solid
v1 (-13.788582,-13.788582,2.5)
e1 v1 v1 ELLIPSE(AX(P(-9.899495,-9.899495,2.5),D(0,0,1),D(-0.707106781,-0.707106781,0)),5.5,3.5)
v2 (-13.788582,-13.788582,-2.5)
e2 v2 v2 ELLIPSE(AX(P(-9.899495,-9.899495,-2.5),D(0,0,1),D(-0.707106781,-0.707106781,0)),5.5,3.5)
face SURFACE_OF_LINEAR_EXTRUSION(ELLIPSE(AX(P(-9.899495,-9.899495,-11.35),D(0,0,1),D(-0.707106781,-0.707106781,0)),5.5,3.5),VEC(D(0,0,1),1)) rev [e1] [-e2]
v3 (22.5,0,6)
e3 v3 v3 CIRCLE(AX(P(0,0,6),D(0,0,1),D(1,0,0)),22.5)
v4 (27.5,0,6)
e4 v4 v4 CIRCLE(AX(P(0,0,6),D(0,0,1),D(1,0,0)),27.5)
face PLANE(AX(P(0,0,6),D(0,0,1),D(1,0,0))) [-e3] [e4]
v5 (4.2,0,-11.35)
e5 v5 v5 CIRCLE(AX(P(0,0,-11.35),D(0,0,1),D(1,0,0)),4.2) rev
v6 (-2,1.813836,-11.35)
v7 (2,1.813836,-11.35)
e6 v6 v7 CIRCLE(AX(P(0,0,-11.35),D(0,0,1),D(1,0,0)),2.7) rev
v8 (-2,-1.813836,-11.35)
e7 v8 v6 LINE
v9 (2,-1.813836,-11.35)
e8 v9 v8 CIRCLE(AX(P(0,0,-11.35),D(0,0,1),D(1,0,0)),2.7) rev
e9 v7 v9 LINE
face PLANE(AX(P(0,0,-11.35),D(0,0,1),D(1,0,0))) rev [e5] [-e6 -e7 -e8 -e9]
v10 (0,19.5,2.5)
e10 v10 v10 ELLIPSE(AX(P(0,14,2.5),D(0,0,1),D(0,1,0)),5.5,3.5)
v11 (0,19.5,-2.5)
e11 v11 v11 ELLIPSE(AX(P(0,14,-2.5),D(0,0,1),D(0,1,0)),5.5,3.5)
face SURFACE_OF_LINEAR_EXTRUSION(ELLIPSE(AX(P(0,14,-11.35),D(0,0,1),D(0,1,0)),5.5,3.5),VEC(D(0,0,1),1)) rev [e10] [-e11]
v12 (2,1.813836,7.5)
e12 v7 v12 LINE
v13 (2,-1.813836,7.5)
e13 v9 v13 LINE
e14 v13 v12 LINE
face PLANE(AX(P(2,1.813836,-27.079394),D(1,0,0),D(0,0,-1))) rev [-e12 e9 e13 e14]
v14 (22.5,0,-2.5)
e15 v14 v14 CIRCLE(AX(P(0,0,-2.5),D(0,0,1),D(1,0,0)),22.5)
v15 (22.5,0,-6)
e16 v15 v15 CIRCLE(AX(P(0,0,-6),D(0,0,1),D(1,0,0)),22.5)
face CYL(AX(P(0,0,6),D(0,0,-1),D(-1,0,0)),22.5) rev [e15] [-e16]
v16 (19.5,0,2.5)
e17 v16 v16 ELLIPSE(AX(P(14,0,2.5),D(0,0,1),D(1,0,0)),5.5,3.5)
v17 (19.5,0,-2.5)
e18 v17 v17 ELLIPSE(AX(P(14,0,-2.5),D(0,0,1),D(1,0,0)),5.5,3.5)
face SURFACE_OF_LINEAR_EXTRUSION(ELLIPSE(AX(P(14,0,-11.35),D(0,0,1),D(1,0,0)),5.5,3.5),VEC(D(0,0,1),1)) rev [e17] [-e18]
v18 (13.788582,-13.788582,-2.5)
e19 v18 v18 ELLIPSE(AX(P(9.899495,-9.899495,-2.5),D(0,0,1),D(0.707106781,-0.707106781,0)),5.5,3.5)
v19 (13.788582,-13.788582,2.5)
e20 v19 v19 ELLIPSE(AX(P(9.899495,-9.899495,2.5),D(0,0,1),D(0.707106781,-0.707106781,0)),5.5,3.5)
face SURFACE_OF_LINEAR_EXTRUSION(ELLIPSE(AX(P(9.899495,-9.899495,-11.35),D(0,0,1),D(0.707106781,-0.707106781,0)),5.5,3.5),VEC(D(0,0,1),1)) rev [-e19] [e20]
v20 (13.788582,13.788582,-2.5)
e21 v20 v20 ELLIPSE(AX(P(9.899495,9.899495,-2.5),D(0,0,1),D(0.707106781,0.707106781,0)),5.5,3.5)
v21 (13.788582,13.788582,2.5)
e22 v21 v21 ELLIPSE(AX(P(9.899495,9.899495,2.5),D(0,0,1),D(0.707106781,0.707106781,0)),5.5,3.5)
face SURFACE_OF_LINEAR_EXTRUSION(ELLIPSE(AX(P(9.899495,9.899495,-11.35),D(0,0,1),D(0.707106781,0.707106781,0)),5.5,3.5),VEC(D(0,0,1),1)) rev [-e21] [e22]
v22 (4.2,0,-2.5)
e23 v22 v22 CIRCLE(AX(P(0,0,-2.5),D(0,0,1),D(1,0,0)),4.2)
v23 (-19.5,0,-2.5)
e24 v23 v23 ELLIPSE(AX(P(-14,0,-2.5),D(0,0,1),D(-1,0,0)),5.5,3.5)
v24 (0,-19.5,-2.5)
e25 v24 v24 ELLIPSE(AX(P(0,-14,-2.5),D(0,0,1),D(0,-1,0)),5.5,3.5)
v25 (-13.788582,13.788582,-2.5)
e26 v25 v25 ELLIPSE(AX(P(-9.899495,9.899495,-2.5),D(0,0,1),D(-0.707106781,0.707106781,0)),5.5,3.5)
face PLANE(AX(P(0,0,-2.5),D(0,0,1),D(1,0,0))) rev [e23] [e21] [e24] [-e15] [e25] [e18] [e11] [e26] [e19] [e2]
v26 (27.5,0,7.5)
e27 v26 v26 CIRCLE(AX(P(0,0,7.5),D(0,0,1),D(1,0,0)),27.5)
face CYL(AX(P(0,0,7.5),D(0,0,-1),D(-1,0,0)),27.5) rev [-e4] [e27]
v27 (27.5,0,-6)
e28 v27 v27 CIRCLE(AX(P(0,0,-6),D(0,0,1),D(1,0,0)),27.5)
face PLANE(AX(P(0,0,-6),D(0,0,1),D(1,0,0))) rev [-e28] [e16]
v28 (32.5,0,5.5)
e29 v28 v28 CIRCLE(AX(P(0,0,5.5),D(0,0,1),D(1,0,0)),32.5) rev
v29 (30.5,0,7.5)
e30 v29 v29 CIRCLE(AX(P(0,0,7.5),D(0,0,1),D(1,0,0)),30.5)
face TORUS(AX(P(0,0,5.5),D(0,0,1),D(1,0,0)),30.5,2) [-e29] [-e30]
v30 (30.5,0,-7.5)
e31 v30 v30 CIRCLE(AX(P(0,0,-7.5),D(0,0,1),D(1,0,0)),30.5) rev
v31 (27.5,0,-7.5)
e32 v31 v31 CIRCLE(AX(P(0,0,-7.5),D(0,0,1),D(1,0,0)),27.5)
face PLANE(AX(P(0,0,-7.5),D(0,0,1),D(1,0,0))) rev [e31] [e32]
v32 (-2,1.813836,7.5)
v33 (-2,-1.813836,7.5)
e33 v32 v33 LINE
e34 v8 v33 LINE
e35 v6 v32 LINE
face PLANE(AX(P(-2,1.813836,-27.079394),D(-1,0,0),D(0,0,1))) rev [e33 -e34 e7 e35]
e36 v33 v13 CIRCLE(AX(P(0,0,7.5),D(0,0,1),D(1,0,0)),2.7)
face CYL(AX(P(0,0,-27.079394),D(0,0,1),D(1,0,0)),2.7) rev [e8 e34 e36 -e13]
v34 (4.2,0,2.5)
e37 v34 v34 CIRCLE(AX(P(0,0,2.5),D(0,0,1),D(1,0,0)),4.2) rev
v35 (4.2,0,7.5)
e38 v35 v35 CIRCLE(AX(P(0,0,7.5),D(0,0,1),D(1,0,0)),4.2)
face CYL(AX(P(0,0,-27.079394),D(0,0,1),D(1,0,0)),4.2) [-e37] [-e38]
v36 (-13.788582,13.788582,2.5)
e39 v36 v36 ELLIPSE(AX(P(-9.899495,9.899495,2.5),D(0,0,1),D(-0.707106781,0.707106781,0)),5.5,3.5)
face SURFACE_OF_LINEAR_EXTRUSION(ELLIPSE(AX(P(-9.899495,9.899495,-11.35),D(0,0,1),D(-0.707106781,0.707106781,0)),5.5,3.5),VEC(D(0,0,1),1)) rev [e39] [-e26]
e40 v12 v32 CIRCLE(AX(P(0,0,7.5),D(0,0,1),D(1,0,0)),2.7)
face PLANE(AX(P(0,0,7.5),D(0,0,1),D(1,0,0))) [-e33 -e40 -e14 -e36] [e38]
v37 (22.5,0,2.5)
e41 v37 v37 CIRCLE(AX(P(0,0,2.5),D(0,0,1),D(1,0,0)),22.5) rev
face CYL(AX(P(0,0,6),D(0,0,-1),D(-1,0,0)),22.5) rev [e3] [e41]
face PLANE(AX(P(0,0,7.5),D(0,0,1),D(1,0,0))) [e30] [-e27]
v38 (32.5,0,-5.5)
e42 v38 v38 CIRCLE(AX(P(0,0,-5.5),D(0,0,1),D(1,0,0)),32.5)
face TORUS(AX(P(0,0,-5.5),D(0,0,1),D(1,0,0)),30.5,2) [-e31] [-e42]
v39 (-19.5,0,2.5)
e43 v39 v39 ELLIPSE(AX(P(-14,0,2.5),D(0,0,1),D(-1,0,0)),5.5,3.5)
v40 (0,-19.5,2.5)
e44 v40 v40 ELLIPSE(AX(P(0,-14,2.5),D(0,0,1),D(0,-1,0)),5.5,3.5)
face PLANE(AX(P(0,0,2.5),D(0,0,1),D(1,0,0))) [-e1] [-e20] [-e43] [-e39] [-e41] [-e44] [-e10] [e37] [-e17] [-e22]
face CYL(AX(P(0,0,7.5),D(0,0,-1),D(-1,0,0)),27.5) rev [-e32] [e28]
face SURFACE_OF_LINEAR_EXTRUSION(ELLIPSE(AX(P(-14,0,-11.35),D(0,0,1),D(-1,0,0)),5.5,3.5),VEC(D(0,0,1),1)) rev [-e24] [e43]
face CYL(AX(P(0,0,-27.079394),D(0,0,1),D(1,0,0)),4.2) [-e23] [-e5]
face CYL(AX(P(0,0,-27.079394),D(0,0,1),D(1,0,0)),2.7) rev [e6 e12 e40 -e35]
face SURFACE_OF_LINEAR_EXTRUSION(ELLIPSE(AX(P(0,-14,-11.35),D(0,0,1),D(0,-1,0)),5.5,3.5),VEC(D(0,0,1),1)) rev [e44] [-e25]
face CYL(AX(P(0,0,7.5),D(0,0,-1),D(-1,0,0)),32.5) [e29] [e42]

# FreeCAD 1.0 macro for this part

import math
import FreeCAD as App
import Part
import Sketcher
Q = App.Units.Quantity


def edges_at(feature, points):
    """Names of the edges that pass closest to the given points."""
    edges = feature.Shape.Edges
    near = lambda p: min(range(len(edges)), key=lambda i: edges[i].distToShape(Part.Vertex(*p))[0])
    return sorted({f"Edge{near(p) + 1}" for p in points})

doc = App.newDocument("Part")
body = doc.addObject("PartDesign::Body", "Body")

# Sketch on XY plane
sketch1 = doc.addObject("Sketcher::SketchObject", "Sketch")
body.addObject(sketch1)
sketch1.AttachmentSupport = (doc.XY_Plane, [""])
sketch1.MapMode = "FlatFace"
sketch1.addGeometry([
    Part.Circle(App.Vector(0, 0, 0), App.Vector(0, 0, 1), 32.5),
    Part.Circle(App.Vector(0, 0, 0), App.Vector(0, 0, 1), 27.5),
], False)
sketch1.addConstraint([
    Sketcher.Constraint("Coincident", 0, 3, -1, 1),
    Sketcher.Constraint("Coincident", 1, 3, -1, 1),
    Sketcher.Constraint("Diameter", 0, Q("65 mm")),
    Sketcher.Constraint("Diameter", 1, Q("55 mm")),
])
pad1 = doc.addObject("PartDesign::Pad", "Pad")
body.addObject(pad1)
pad1.Profile = sketch1
pad1.Length = 15
pad1.Midplane = True
doc.recompute()

fillet = doc.addObject("PartDesign::Fillet", "Fillet")
body.addObject(fillet)
fillet.Base = (pad1, edges_at(pad1, [(-32.5, 0, -7.5), (-32.5, 0, 7.5)]))
fillet.Radius = 2

# Sketch on XY plane
sketch2 = doc.addObject("Sketcher::SketchObject", "Sketch001")
body.addObject(sketch2)
sketch2.AttachmentSupport = (doc.XY_Plane, [""])
sketch2.MapMode = "FlatFace"
sketch2.addGeometry([
    Part.Circle(App.Vector(0, 0, 0), App.Vector(0, 0, 1), 27.5),
    Part.Circle(App.Vector(0, 0, 0), App.Vector(0, 0, 1), 22.5),
], False)
sketch2.addConstraint([
    Sketcher.Constraint("Coincident", 0, 3, -1, 1),
    Sketcher.Constraint("Coincident", 1, 3, -1, 1),
    Sketcher.Constraint("Diameter", 0, Q("55 mm")),
    Sketcher.Constraint("Diameter", 1, Q("45 mm")),
])
pad2 = doc.addObject("PartDesign::Pad", "Pad001")
body.addObject(pad2)
pad2.Profile = sketch2
pad2.Length = 12
pad2.Midplane = True
body2 = doc.addObject("PartDesign::Body", "Body001")

# Sketch on XY plane
sketch3 = doc.addObject("Sketcher::SketchObject", "Sketch002")
body2.addObject(sketch3)
sketch3.AttachmentSupport = (doc.getObject("XY_Plane001"), [""])
sketch3.MapMode = "FlatFace"
sketch3.AttachmentOffset = App.Placement(App.Vector(0, 0, 7.5), App.Rotation())
sketch3.addGeometry([
    Part.Circle(App.Vector(0, 0, 0), App.Vector(0, 0, 1), 4.2),  # 0
    Part.LineSegment(App.Vector(-2, -1.813836, 0), App.Vector(-2, 1.813836, 0)),  # 1
    Part.ArcOfCircle(Part.Circle(App.Vector(0, 0, 0), App.Vector(0, 0, 1), 2.7), math.radians(42.205446), math.radians(137.794554)),  # 2
    Part.LineSegment(App.Vector(2, 1.813836, 0), App.Vector(2, -1.813836, 0)),  # 3
    Part.ArcOfCircle(Part.Circle(App.Vector(0, 0, 0), App.Vector(0, 0, 1), 2.7), math.radians(-137.794554), math.radians(-42.205446)),  # 4
], False)
sketch3.addConstraint([
    Sketcher.Constraint("Coincident", 1, 2, 2, 2),
    Sketcher.Constraint("Coincident", 2, 1, 3, 1),
    Sketcher.Constraint("Coincident", 3, 2, 4, 2),
    Sketcher.Constraint("Coincident", 4, 1, 1, 1),
    Sketcher.Constraint("Vertical", 1),
    Sketcher.Constraint("Vertical", 3),
    Sketcher.Constraint("Coincident", 0, 3, -1, 1),
    Sketcher.Constraint("Coincident", 2, 3, -1, 1),
    Sketcher.Constraint("Coincident", 4, 3, -1, 1),
    Sketcher.Constraint("Equal", 2, 4),
    Sketcher.Constraint("Horizontal", 1, 2, 2, 1),
    Sketcher.Constraint("Diameter", 0, Q("8.4 mm")),
    Sketcher.Constraint("Radius", 2, Q("2.7 mm")),
    Sketcher.Constraint("DistanceX", 1, 2, -1, 1, Q("2 mm")),
])
pad3 = doc.addObject("PartDesign::Pad", "Pad002")
body2.addObject(pad3)
pad3.Profile = sketch3
pad3.Length = 18.85
pad3.Reversed = True
body.AllowCompound = True
doc.recompute()

boolean = doc.addObject("PartDesign::Boolean", "Boolean")
body.addObject(boolean)
boolean.Type = "Fuse"
boolean.addObjects([body2])

# Sketch on XY plane
sketch4 = doc.addObject("Sketcher::SketchObject", "Sketch003")
body.addObject(sketch4)
sketch4.AttachmentSupport = (doc.XY_Plane, [""])
sketch4.MapMode = "FlatFace"
sketch4.addGeometry([
    Part.Circle(App.Vector(0, 0, 0), App.Vector(0, 0, 1), 22.5),
    Part.Circle(App.Vector(0, 0, 0), App.Vector(0, 0, 1), 4.2),
], False)
sketch4.addConstraint([
    Sketcher.Constraint("Coincident", 0, 3, -1, 1),
    Sketcher.Constraint("Coincident", 1, 3, -1, 1),
    Sketcher.Constraint("Diameter", 0, Q("45 mm")),
    Sketcher.Constraint("Diameter", 1, Q("8.4 mm")),
])
pad4 = doc.addObject("PartDesign::Pad", "Pad003")
body.addObject(pad4)
pad4.Profile = sketch4
pad4.Length = 5
pad4.Midplane = True

# Sketch on XY plane
sketch5 = doc.addObject("Sketcher::SketchObject", "Sketch004")
body.addObject(sketch5)
sketch5.AttachmentSupport = (doc.XY_Plane, [""])
sketch5.MapMode = "FlatFace"
sketch5.AttachmentOffset = App.Placement(App.Vector(0, 0, -12.35), App.Rotation())
sketch5.addGeometry(Part.Ellipse(App.Vector(0, 19.5, 0), App.Vector(-3.5, 14, 0), App.Vector(0, 14, 0)), False)
sketch5.addConstraint(Sketcher.Constraint("Block", 0))
pocket1 = doc.addObject("PartDesign::Pocket", "Pocket")
body.addObject(pocket1)
pocket1.Profile = sketch5
pocket1.Length = 20.85
pocket1.Reversed = True
doc.recompute()

polarpattern = doc.addObject("PartDesign::PolarPattern", "PolarPattern")
body.addObject(polarpattern)
polarpattern.Originals = [pocket1]
polarpattern.Axis = (doc.Z_Axis, [""])
polarpattern.Angle = 360
polarpattern.Occurrences = 8
body.Tip = polarpattern

doc.recompute()
